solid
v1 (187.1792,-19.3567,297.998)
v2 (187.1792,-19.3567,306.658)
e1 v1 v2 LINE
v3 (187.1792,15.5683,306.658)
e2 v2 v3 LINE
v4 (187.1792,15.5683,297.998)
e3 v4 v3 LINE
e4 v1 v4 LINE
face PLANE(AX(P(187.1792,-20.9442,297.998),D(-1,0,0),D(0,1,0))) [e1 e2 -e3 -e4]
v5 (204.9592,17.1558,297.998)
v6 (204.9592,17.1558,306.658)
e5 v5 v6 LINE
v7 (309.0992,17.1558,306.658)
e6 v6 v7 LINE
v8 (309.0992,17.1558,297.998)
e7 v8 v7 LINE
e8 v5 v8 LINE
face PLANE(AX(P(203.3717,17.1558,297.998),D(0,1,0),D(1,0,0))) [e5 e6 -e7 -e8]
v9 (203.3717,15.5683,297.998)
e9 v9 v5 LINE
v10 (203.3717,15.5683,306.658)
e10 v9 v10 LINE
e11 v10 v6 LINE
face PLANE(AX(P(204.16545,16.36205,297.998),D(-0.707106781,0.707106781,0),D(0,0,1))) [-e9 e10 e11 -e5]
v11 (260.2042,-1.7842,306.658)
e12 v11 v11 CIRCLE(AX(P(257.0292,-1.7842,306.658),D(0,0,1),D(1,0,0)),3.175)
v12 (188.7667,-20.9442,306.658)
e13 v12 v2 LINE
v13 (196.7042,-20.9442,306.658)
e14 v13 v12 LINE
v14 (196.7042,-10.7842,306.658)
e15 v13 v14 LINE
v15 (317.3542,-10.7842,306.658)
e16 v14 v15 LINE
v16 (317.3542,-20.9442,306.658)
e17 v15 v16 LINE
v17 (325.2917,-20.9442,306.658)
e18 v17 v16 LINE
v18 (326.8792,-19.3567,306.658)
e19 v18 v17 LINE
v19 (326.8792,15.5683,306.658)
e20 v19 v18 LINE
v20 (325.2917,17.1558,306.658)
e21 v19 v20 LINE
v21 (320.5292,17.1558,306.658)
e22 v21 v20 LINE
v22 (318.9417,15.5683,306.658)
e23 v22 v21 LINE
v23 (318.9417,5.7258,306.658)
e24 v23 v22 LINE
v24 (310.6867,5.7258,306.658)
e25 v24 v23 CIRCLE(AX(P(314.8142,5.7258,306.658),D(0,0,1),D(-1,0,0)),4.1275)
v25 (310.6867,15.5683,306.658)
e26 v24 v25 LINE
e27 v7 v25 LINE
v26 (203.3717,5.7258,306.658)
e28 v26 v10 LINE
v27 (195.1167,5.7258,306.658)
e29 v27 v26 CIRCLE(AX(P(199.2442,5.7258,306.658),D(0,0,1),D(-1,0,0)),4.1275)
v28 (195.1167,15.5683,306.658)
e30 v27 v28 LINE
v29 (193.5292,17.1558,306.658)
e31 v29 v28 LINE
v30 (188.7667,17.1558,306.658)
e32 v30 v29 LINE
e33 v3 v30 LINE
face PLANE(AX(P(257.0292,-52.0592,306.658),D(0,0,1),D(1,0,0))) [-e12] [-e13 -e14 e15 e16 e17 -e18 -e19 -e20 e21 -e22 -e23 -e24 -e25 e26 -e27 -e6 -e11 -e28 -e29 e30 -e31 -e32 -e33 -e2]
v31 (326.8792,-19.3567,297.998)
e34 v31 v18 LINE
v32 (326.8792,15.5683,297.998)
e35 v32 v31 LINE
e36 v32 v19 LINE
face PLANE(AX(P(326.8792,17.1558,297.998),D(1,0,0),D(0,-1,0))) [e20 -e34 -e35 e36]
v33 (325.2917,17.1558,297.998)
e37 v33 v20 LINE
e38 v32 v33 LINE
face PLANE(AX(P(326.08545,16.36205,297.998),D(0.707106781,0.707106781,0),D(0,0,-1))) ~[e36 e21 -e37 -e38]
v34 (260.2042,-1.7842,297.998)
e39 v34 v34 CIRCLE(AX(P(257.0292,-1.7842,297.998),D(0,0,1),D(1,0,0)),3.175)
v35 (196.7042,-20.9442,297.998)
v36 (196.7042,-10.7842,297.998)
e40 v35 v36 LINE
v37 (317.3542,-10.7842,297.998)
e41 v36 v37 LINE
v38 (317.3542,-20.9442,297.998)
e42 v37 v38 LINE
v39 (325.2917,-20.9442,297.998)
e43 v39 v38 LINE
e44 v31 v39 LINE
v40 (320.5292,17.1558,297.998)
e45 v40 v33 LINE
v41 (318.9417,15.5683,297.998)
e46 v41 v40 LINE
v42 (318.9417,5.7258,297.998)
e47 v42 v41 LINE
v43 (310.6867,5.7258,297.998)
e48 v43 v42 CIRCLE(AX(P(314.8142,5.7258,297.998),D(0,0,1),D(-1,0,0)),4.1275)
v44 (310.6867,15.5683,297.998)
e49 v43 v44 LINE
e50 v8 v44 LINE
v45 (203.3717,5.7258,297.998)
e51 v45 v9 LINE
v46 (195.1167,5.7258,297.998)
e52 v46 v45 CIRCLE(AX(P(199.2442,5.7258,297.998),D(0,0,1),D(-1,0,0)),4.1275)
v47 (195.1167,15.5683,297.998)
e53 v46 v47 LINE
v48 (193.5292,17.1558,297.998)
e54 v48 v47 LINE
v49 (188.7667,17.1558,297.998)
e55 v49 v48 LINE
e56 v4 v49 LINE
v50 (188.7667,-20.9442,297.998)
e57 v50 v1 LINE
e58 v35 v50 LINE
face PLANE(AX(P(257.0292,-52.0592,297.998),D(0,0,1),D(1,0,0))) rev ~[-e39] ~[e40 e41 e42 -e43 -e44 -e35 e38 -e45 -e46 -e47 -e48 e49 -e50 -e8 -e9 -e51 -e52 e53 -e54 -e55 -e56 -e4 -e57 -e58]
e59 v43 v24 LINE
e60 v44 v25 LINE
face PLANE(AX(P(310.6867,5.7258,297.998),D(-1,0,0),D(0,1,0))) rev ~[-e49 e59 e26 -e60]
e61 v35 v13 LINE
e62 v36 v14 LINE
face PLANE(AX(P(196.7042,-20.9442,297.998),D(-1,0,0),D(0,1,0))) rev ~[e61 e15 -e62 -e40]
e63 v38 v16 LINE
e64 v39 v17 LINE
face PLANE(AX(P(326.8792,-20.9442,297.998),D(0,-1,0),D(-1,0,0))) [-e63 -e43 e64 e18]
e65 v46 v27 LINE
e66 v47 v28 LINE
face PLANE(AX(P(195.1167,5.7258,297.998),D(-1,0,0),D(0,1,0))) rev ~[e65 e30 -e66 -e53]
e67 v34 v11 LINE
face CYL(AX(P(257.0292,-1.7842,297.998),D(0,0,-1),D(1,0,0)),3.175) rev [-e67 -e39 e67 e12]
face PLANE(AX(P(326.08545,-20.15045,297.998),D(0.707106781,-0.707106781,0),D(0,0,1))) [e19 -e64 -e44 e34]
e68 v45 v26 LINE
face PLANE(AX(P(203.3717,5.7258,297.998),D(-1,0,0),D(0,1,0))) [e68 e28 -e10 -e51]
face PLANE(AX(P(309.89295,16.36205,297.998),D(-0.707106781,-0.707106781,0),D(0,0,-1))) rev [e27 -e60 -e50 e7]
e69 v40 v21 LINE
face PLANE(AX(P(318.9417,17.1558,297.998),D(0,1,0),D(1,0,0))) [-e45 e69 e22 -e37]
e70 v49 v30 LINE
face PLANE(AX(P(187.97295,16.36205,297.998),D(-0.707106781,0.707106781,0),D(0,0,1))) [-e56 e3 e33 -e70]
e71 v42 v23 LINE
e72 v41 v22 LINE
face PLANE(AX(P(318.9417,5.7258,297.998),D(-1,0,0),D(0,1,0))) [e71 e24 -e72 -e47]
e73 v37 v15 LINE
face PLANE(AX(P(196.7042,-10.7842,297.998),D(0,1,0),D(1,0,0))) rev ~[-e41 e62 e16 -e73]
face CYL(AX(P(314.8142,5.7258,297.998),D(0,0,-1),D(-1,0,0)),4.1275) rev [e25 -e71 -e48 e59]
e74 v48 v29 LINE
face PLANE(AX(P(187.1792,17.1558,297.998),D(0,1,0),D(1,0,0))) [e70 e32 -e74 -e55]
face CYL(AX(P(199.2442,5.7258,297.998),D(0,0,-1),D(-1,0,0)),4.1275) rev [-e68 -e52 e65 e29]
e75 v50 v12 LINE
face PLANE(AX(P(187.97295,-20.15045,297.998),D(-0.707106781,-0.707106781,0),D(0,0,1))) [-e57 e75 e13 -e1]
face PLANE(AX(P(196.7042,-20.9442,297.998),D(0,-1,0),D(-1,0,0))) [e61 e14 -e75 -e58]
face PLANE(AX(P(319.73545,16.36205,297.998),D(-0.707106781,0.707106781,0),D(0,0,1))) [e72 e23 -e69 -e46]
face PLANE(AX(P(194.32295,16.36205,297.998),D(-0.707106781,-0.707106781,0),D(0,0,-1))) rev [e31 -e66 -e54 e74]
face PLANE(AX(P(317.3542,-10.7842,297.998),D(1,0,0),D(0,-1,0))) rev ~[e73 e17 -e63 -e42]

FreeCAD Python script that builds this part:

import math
import FreeCAD as App
import Part
import Sketcher
Q = App.Units.Quantity


def edges_at(feature, points):
    """Names of the edges that pass closest to the given points."""
    edges = feature.Shape.Edges
    near = lambda p: min(range(len(edges)), key=lambda i: edges[i].distToShape(Part.Vertex(*p))[0])
    return sorted({f"Edge{near(p) + 1}" for p in points})

doc = App.newDocument("Part")
body = doc.addObject("PartDesign::Body", "Body")

# Sketch on XY plane
sketch1 = body.newObject("Sketcher::SketchObject", "Sketch")
sketch1.AttachmentSupport = (doc.getObject("XY_Plane"), [""])
sketch1.MapMode = "FlatFace"
sketch1.AttachmentOffset = App.Placement(App.Vector(0, 0, 11.7322047 * 25.4), App.Rotation())
sketch1.addGeometry([
    Part.LineSegment(App.Vector(326.8792, -20.9442, 0), App.Vector(326.8792, 17.1558, 0)),  # 0
    Part.LineSegment(App.Vector(326.8792, 17.1558, 0), App.Vector(318.9417, 17.1558, 0)),  # 1
    Part.LineSegment(App.Vector(318.9417, 17.1558, 0), App.Vector(318.9417, 5.7258, 0)),  # 2
    Part.ArcOfCircle(Part.Circle(App.Vector(314.8142, 5.7258, 0), App.Vector(0, 0, 1), 4.1275), math.radians(180), math.radians(360)),  # 3
    Part.LineSegment(App.Vector(310.6867, 5.7258, 0), App.Vector(310.6867, 17.1558, 0)),  # 4
    Part.LineSegment(App.Vector(310.6867, 17.1558, 0), App.Vector(203.3717, 17.1558, 0)),  # 5
    Part.LineSegment(App.Vector(203.3717, 17.1558, 0), App.Vector(203.3717, 5.7258, 0)),  # 6
    Part.ArcOfCircle(Part.Circle(App.Vector(199.2442, 5.7258, 0), App.Vector(0, 0, 1), 4.1275), math.radians(180), math.radians(360)),  # 7
    Part.LineSegment(App.Vector(195.1167, 5.7258, 0), App.Vector(195.1167, 17.1558, 0)),  # 8
    Part.LineSegment(App.Vector(195.1167, 17.1558, 0), App.Vector(187.1792, 17.1558, 0)),  # 9
    Part.LineSegment(App.Vector(187.1792, 17.1558, 0), App.Vector(187.1792, -20.9442, 0)),  # 10
    Part.LineSegment(App.Vector(187.1792, -20.9442, 0), App.Vector(196.7042, -20.9442, 0)),  # 11
    Part.LineSegment(App.Vector(196.7042, -20.9442, 0), App.Vector(196.7042, -10.7842, 0)),  # 12
    Part.LineSegment(App.Vector(196.7042, -10.7842, 0), App.Vector(317.3542, -10.7842, 0)),  # 13
    Part.LineSegment(App.Vector(317.3542, -10.7842, 0), App.Vector(317.3542, -20.9442, 0)),  # 14
    Part.LineSegment(App.Vector(317.3542, -20.9442, 0), App.Vector(326.8792, -20.9442, 0)),  # 15
    Part.Circle(App.Vector(257.0292, -1.7842, 0), App.Vector(0, 0, 1), 3.175),  # 16
], False)
sketch1.addConstraint([
    Sketcher.Constraint("Coincident", 0, 2, 1, 1),
    Sketcher.Constraint("Coincident", 1, 2, 2, 1),
    Sketcher.Constraint("Tangent", 2, 2, 3, 2),
    Sketcher.Constraint("Tangent", 3, 1, 4, 1),
    Sketcher.Constraint("Coincident", 4, 2, 5, 1),
    Sketcher.Constraint("Coincident", 5, 2, 6, 1),
    Sketcher.Constraint("Tangent", 6, 2, 7, 2),
    Sketcher.Constraint("Tangent", 7, 1, 8, 1),
    Sketcher.Constraint("Coincident", 8, 2, 9, 1),
    Sketcher.Constraint("Coincident", 9, 2, 10, 1),
    Sketcher.Constraint("Coincident", 10, 2, 11, 1),
    Sketcher.Constraint("Coincident", 11, 2, 12, 1),
    Sketcher.Constraint("Coincident", 12, 2, 13, 1),
    Sketcher.Constraint("Coincident", 13, 2, 14, 1),
    Sketcher.Constraint("Coincident", 14, 2, 15, 1),
    Sketcher.Constraint("Coincident", 15, 2, 0, 1),
    Sketcher.Constraint("Vertical", 0),
    Sketcher.Constraint("Horizontal", 1),
    Sketcher.Constraint("Vertical", 2),
    Sketcher.Constraint("Vertical", 4),
    Sketcher.Constraint("Horizontal", 5),
    Sketcher.Constraint("Vertical", 6),
    Sketcher.Constraint("Vertical", 8),
    Sketcher.Constraint("Horizontal", 9),
    Sketcher.Constraint("Vertical", 10),
    Sketcher.Constraint("Horizontal", 11),
    Sketcher.Constraint("Vertical", 12),
    Sketcher.Constraint("Horizontal", 13),
    Sketcher.Constraint("Vertical", 14),
    Sketcher.Constraint("Horizontal", 15),
    Sketcher.Constraint("Equal", 3, 7),
    Sketcher.Constraint("Horizontal", 3, 3, 7, 3),
    Sketcher.Constraint("Horizontal", 1, 2, 4, 2),
    Sketcher.Constraint("Horizontal", 5, 2, 8, 2),
    Sketcher.Constraint("Horizontal", 11, 2, 14, 2),
    Sketcher.Constraint("Equal", 1, 9),
    Sketcher.Constraint("Equal", 11, 15),
    Sketcher.Constraint("Diameter", 16, Q("0.25 in")),
    Sketcher.Constraint("DistanceY", 0, 1, 0, 2, Q("1.5 in")),
    Sketcher.Constraint("DistanceY", 12, 1, 12, 2, Q("0.4 in")),
    Sketcher.Constraint("DistanceX", 13, 1, 13, 2, Q("4.75 in")),
    Sketcher.Constraint("Radius", 3, Q("0.1625 in")),
    Sketcher.Constraint("DistanceX", 16, 3, 0, 2, Q("2.75 in")),
    Sketcher.Constraint("DistanceX", 7, 3, 16, 3, Q("2.275 in")),
    Sketcher.Constraint("DistanceX", 16, 3, 3, 3, Q("2.275 in")),
    Sketcher.Constraint("DistanceY", 2, 2, 2, 1, Q("0.45 in")),
    Sketcher.Constraint("DistanceX", -1, 1, 3, 3, 314.8142),
    Sketcher.Constraint("DistanceY", -1, 1, 3, 3, 5.7258),
    Sketcher.Constraint("DistanceY", 16, 3, -1, 1, 1.7842),
])
pad1 = body.newObject("PartDesign::Pad", "Pad")
pad1.Profile = sketch1
pad1.Length = 8.66
doc.recompute()

chamfer = body.newObject("PartDesign::Chamfer", "Chamfer")
chamfer.Base = (pad1, edges_at(pad1, [
    (326.879, -20.944, 302.328),
    (326.879, 17.156, 302.328),
    (187.179, -20.944, 302.328),
    (187.179, 17.156, 302.328),
    (310.687, 17.156, 302.328),
    (318.942, 17.156, 302.328),
    (203.372, 17.156, 302.328),
    (195.117, 17.156, 302.328),
]))
chamfer.Size = Q("0.0625 in")

doc.recompute()
